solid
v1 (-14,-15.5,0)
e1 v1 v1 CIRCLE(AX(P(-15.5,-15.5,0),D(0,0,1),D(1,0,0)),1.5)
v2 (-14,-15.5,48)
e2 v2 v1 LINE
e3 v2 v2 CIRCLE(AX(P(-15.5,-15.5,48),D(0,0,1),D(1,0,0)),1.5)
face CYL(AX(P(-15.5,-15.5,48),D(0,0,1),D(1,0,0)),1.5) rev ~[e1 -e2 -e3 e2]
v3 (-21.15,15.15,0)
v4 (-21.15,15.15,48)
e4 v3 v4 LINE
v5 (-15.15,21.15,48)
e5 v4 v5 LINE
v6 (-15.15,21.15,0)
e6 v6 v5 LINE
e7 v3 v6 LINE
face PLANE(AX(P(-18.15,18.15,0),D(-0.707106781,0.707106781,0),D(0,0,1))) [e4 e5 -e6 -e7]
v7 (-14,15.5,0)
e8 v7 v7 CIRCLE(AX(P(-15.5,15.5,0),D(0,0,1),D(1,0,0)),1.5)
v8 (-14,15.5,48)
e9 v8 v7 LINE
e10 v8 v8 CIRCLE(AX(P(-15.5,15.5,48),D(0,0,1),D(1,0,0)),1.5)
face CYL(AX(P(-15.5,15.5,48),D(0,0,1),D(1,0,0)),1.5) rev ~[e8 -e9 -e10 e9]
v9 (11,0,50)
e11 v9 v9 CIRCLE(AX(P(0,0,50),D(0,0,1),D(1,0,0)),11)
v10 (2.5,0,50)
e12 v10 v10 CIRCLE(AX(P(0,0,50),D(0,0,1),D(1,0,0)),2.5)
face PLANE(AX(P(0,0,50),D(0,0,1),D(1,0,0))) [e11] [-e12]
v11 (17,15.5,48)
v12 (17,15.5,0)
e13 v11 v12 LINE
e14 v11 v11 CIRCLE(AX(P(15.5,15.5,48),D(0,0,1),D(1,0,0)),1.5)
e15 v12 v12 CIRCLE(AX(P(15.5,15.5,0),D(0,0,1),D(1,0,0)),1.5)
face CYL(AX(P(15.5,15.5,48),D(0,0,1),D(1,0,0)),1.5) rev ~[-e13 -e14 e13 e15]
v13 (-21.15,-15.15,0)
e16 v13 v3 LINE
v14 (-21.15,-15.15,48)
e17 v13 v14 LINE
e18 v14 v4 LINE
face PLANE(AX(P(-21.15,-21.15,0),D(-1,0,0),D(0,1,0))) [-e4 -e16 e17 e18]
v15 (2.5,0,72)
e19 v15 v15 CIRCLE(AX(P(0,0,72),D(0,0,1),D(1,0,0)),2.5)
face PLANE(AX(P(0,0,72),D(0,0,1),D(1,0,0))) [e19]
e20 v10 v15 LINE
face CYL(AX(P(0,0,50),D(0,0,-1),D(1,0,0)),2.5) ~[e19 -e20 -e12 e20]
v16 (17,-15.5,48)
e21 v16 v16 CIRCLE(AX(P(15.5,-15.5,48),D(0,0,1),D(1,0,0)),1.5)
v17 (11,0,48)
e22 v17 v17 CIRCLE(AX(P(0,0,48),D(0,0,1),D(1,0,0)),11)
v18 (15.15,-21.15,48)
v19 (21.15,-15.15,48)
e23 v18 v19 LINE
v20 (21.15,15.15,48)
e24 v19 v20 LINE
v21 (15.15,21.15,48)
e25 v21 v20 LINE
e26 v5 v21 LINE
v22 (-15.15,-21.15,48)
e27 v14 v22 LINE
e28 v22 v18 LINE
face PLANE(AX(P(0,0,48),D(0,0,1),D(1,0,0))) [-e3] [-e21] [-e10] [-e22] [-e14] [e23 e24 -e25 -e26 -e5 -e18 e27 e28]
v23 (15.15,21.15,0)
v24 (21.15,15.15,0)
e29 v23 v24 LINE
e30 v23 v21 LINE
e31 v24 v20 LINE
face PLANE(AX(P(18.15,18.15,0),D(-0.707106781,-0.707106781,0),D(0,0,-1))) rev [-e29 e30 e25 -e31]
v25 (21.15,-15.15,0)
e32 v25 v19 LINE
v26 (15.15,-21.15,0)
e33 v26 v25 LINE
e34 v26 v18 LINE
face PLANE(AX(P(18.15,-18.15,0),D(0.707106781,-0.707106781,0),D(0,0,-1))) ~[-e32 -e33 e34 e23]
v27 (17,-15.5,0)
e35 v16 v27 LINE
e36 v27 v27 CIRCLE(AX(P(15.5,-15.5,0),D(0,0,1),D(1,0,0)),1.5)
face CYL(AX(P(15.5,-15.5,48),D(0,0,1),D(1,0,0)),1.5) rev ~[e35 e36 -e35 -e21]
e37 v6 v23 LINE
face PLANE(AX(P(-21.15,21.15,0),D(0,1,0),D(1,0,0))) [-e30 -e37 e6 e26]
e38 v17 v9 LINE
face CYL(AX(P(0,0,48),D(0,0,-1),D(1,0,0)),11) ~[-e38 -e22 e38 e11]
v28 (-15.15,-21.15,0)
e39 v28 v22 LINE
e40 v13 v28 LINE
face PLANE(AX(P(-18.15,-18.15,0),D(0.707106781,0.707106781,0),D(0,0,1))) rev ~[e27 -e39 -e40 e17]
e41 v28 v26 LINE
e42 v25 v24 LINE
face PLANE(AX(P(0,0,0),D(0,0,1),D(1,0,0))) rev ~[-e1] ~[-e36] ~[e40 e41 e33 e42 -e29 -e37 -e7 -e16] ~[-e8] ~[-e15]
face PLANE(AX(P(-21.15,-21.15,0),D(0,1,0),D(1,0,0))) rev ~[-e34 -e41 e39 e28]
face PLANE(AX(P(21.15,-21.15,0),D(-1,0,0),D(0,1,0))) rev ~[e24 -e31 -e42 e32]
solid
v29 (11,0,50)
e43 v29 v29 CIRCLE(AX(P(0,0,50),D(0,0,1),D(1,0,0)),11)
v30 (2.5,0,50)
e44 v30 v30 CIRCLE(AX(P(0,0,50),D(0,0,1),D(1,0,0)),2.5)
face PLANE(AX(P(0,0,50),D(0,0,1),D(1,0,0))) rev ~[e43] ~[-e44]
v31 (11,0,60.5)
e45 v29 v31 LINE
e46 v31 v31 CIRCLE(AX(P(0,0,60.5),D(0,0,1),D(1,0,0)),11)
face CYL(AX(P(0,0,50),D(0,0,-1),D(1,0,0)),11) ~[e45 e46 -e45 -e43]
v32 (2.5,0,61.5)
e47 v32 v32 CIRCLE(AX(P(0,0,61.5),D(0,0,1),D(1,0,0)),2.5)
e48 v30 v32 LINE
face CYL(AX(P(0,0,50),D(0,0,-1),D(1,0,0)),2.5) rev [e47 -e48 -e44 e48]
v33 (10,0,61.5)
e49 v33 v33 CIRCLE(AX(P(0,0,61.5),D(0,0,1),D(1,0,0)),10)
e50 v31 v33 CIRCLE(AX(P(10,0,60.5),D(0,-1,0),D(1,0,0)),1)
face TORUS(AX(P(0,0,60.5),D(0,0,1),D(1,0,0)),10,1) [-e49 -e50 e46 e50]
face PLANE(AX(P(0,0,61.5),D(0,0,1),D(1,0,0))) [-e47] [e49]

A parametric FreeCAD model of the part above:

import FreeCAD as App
import Part
import Sketcher
from FreeCAD import Vector
Q = App.Units.Quantity


def edges_at(feature, points):
    """Names of the edges that pass closest to the given points."""
    edges = feature.Shape.Edges
    near = lambda p: min(range(len(edges)), key=lambda i: edges[i].distToShape(Part.Vertex(*p))[0])
    return sorted({f"Edge{near(p) + 1}" for p in points})

doc = App.newDocument("Part")
params = doc.addObject("Spreadsheet::Sheet", "Params")
for row, (alias, value) in enumerate([
    ("sketch1_width", "42.3 mm"),
    ("pad1_length", "48 mm"),
    ("sketch2_diameter", "22 mm"),
    ("pad2_length", "2 mm"),
    ("sketch3_diameter", "5 mm"),
    ("pad3_length", "22 mm"),
    ("sketch4_diameter", "3 mm"),
    ("pocket1_length", "48 mm"),
    ("chamfer_size", "6 mm"),
    ("sketch5_diameter", "22 mm"),
    ("sketch5_diameter2", "5 mm"),
    ("pad4_length", "11.5 mm"),
    ("fillet_radius", "1 mm"),
], start=1):
    params.set(f"A{row}", alias)
    params.set(f"B{row}", "=" + value)
    params.setAlias(f"B{row}", alias)

body = doc.addObject("PartDesign::Body", "Body")

sketch1 = doc.addObject("Sketcher::SketchObject", "Sketch")
body.addObject(sketch1)
sketch1.AttachmentSupport = (doc.XY_Plane, [""])
sketch1.MapMode = "FlatFace"
sketch1.addGeometry(Part.LineSegment(Vector(-21, 21, 0), Vector(-21, -21, 0)), False)
sketch1.addGeometry(Part.LineSegment(Vector(-21, -21, 0), Vector(21, -21, 0)), False)
sketch1.addGeometry(Part.LineSegment(Vector(21, -21, 0), Vector(21, 21, 0)), False)
sketch1.addGeometry(Part.LineSegment(Vector(21, 21, 0), Vector(-21, 21, 0)), False)
sketch1.addConstraint(Sketcher.Constraint("Coincident", 0, 2, 1, 1))
sketch1.addConstraint(Sketcher.Constraint("Coincident", 1, 2, 2, 1))
sketch1.addConstraint(Sketcher.Constraint("Coincident", 2, 2, 3, 1))
sketch1.addConstraint(Sketcher.Constraint("Coincident", 3, 2, 0, 1))
sketch1.addConstraint(Sketcher.Constraint("Vertical", 0))
sketch1.addConstraint(Sketcher.Constraint("Horizontal", 1))
sketch1.addConstraint(Sketcher.Constraint("Vertical", 2))
sketch1.addConstraint(Sketcher.Constraint("Horizontal", 3))
sketch1.addConstraint(Sketcher.Constraint("Symmetric", 0, 2, 2, 2, -1, 1))
sketch1.addConstraint(Sketcher.Constraint("Equal", 3, 0))
sketch1.addConstraint(Sketcher.Constraint("DistanceX", 1, 1, 1, 2, Q("42.3 mm")))
sketch1.setExpression("Constraints[10]", "Params.sketch1_width")
pad1 = doc.addObject("PartDesign::Pad", "Pad")
body.addObject(pad1)
pad1.Profile = sketch1
pad1.setExpression("Length", "Params.pad1_length")

sketch2 = doc.addObject("Sketcher::SketchObject", "Sketch001")
body.addObject(sketch2)
sketch2.AttachmentSupport = (doc.XY_Plane, [""])
sketch2.MapMode = "FlatFace"
sketch2.AttachmentOffset = App.Placement(Vector(0, 0, 48), App.Rotation())
sketch2.addGeometry(Part.Circle(Vector(0, 0, 0), Vector(0, 0, 1), 11), False)
sketch2.addConstraint(Sketcher.Constraint("Coincident", 0, 3, -1, 1))
sketch2.addConstraint(Sketcher.Constraint("Diameter", 0, Q("22 mm")))
sketch2.setExpression("Constraints[1]", "Params.sketch2_diameter")
pad2 = doc.addObject("PartDesign::Pad", "Pad001")
body.addObject(pad2)
pad2.Profile = sketch2
pad2.setExpression("Length", "Params.pad2_length")

sketch3 = doc.addObject("Sketcher::SketchObject", "Sketch002")
body.addObject(sketch3)
sketch3.AttachmentSupport = (doc.XY_Plane, [""])
sketch3.MapMode = "FlatFace"
sketch3.AttachmentOffset = App.Placement(Vector(0, 0, 50), App.Rotation())
sketch3.addGeometry(Part.Circle(Vector(0, 0, 0), Vector(0, 0, 1), 2.5), False)
sketch3.addConstraint(Sketcher.Constraint("Coincident", 0, 3, -1, 1))
sketch3.addConstraint(Sketcher.Constraint("Diameter", 0, Q("5 mm")))
sketch3.setExpression("Constraints[1]", "Params.sketch3_diameter")
pad3 = doc.addObject("PartDesign::Pad", "Pad002")
body.addObject(pad3)
pad3.Profile = sketch3
pad3.setExpression("Length", "Params.pad3_length")

sketch4 = doc.addObject("Sketcher::SketchObject", "Sketch003")
body.addObject(sketch4)
sketch4.AttachmentSupport = (doc.XY_Plane, [""])
sketch4.MapMode = "FlatFace"
sketch4.AttachmentOffset = App.Placement(Vector(0, 0, 48), App.Rotation())
sketch4.addGeometry(Part.Circle(Vector(15.5, -15.5, 0), Vector(0, 0, 1), 1.5), False)
sketch4.addGeometry(Part.Circle(Vector(15.5, 15.5, 0), Vector(0, 0, 1), 1.5), False)
sketch4.addGeometry(Part.Circle(Vector(-15.5, -15.5, 0), Vector(0, 0, 1), 1.5), False)
sketch4.addGeometry(Part.Circle(Vector(-15.5, 15.5, 0), Vector(0, 0, 1), 1.5), False)
sketch4.addConstraint(Sketcher.Constraint("Equal", 0, 1))
sketch4.addConstraint(Sketcher.Constraint("Equal", 1, 2))
sketch4.addConstraint(Sketcher.Constraint("Equal", 2, 3))
sketch4.addConstraint(Sketcher.Constraint("Symmetric", 1, 3, 2, 3, -1, 1))
sketch4.addConstraint(Sketcher.Constraint("Symmetric", 0, 3, 3, 3, -1, 1))
sketch4.addConstraint(Sketcher.Constraint("Symmetric", 0, 3, 2, 3, -2))
sketch4.addConstraint(Sketcher.Constraint("Diameter", 0, Q("3 mm")))
sketch4.addConstraint(Sketcher.Constraint("DistanceY", 0, 3, 1, 3, Q("31 mm")))
sketch4.addConstraint(Sketcher.Constraint("DistanceX", 2, 3, 0, 3, Q("31 mm")))
sketch4.setExpression("Constraints[6]", "Params.sketch4_diameter")
pocket1 = doc.addObject("PartDesign::Pocket", "Pocket")
body.addObject(pocket1)
pocket1.Profile = sketch4
pocket1.setExpression("Length", "Params.pocket1_length")
doc.recompute()

chamfer = doc.addObject("PartDesign::Chamfer", "Chamfer")
body.addObject(chamfer)
chamfer.Base = (pocket1, edges_at(pocket1, [
    (21.15, -21.15, 24),
    (-21.15, -21.15, 24),
    (21.15, 21.15, 24),
    (-21.15, 21.15, 24),
]))
chamfer.setExpression("Size", "Params.chamfer_size")
body2 = doc.addObject("PartDesign::Body", "Body001")

sketch5 = doc.addObject("Sketcher::SketchObject", "Sketch004")
body2.addObject(sketch5)
sketch5.AttachmentSupport = (doc.getObject("XY_Plane001"), [""])
sketch5.MapMode = "FlatFace"
sketch5.AttachmentOffset = App.Placement(Vector(0, 0, 50), App.Rotation())
sketch5.addGeometry(Part.Circle(Vector(0, 0, 0), Vector(0, 0, 1), 11), False)
sketch5.addGeometry(Part.Circle(Vector(0, 0, 0), Vector(0, 0, 1), 2.5), False)
sketch5.addConstraint(Sketcher.Constraint("Coincident", 0, 3, -1, 1))
sketch5.addConstraint(Sketcher.Constraint("Coincident", 1, 3, -1, 1))
sketch5.addConstraint(Sketcher.Constraint("Diameter", 0, Q("22 mm")))
sketch5.addConstraint(Sketcher.Constraint("Diameter", 1, Q("5 mm")))
sketch5.setExpression("Constraints[2]", "Params.sketch5_diameter")
sketch5.setExpression("Constraints[3]", "Params.sketch5_diameter2")
pad4 = doc.addObject("PartDesign::Pad", "Pad003")
body2.addObject(pad4)
pad4.Profile = sketch5
pad4.setExpression("Length", "Params.pad4_length")
doc.recompute()

fillet = doc.addObject("PartDesign::Fillet", "Fillet")
body2.addObject(fillet)
fillet.Base = (pad4, edges_at(pad4, [(-11, 0, 61.5)]))
fillet.setExpression("Radius", "Params.fillet_radius")

doc.recompute()
